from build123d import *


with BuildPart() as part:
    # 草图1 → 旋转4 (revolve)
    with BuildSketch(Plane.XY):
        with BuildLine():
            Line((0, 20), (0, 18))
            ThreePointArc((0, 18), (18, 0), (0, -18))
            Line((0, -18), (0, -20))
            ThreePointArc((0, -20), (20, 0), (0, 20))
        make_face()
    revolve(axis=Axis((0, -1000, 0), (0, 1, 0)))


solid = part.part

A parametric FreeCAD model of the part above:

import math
import FreeCAD as App
import Part
import Sketcher
from FreeCAD import Vector
Q = App.Units.Quantity

doc = App.newDocument("Part")
body = doc.addObject("PartDesign::Body", "Body")

# Sketch on XY plane
sketch1 = body.newObject("Sketcher::SketchObject", "Sketch")
sketch1.AttachmentSupport = (doc.getObject("XY_Plane"), [""])
sketch1.MapMode = "FlatFace"
sketch1.addGeometry([
    Part.LineSegment(Vector(0, 20, 0), Vector(0, 18, 0)),
    Part.ArcOfCircle(Part.Circle(Vector(0, 0, 0), Vector(0, 0, 1), 18), math.radians(-90), math.radians(90)),
    Part.LineSegment(Vector(0, -18, 0), Vector(0, -20, 0)),
    Part.ArcOfCircle(Part.Circle(Vector(0, 0, 0), Vector(0, 0, 1), 20), math.radians(-90), math.radians(90)),
], False)
sketch1.addConstraint([
    Sketcher.Constraint("Coincident", 0, 2, 1, 2),
    Sketcher.Constraint("Coincident", 1, 1, 2, 1),
    Sketcher.Constraint("Coincident", 2, 2, 3, 1),
    Sketcher.Constraint("Coincident", 3, 2, 0, 1),
    Sketcher.Constraint("Vertical", 0),
    Sketcher.Constraint("Vertical", 2),
    Sketcher.Constraint("Coincident", 1, 3, -1, 1),
    Sketcher.Constraint("Coincident", 3, 3, -1, 1),
    Sketcher.Constraint("PointOnObject", 0, 2, -2),
    Sketcher.Constraint("PointOnObject", 1, 1, -2),
    Sketcher.Constraint("Radius", 1, Q("18 mm")),
    Sketcher.Constraint("Radius", 3, Q("20 mm")),
])
revolution = body.newObject("PartDesign::Revolution", "Revolution")
revolution.Profile = sketch1
revolution.ReferenceAxis = (sketch1, ["V_Axis"])
revolution.Angle = 360

doc.recompute()
